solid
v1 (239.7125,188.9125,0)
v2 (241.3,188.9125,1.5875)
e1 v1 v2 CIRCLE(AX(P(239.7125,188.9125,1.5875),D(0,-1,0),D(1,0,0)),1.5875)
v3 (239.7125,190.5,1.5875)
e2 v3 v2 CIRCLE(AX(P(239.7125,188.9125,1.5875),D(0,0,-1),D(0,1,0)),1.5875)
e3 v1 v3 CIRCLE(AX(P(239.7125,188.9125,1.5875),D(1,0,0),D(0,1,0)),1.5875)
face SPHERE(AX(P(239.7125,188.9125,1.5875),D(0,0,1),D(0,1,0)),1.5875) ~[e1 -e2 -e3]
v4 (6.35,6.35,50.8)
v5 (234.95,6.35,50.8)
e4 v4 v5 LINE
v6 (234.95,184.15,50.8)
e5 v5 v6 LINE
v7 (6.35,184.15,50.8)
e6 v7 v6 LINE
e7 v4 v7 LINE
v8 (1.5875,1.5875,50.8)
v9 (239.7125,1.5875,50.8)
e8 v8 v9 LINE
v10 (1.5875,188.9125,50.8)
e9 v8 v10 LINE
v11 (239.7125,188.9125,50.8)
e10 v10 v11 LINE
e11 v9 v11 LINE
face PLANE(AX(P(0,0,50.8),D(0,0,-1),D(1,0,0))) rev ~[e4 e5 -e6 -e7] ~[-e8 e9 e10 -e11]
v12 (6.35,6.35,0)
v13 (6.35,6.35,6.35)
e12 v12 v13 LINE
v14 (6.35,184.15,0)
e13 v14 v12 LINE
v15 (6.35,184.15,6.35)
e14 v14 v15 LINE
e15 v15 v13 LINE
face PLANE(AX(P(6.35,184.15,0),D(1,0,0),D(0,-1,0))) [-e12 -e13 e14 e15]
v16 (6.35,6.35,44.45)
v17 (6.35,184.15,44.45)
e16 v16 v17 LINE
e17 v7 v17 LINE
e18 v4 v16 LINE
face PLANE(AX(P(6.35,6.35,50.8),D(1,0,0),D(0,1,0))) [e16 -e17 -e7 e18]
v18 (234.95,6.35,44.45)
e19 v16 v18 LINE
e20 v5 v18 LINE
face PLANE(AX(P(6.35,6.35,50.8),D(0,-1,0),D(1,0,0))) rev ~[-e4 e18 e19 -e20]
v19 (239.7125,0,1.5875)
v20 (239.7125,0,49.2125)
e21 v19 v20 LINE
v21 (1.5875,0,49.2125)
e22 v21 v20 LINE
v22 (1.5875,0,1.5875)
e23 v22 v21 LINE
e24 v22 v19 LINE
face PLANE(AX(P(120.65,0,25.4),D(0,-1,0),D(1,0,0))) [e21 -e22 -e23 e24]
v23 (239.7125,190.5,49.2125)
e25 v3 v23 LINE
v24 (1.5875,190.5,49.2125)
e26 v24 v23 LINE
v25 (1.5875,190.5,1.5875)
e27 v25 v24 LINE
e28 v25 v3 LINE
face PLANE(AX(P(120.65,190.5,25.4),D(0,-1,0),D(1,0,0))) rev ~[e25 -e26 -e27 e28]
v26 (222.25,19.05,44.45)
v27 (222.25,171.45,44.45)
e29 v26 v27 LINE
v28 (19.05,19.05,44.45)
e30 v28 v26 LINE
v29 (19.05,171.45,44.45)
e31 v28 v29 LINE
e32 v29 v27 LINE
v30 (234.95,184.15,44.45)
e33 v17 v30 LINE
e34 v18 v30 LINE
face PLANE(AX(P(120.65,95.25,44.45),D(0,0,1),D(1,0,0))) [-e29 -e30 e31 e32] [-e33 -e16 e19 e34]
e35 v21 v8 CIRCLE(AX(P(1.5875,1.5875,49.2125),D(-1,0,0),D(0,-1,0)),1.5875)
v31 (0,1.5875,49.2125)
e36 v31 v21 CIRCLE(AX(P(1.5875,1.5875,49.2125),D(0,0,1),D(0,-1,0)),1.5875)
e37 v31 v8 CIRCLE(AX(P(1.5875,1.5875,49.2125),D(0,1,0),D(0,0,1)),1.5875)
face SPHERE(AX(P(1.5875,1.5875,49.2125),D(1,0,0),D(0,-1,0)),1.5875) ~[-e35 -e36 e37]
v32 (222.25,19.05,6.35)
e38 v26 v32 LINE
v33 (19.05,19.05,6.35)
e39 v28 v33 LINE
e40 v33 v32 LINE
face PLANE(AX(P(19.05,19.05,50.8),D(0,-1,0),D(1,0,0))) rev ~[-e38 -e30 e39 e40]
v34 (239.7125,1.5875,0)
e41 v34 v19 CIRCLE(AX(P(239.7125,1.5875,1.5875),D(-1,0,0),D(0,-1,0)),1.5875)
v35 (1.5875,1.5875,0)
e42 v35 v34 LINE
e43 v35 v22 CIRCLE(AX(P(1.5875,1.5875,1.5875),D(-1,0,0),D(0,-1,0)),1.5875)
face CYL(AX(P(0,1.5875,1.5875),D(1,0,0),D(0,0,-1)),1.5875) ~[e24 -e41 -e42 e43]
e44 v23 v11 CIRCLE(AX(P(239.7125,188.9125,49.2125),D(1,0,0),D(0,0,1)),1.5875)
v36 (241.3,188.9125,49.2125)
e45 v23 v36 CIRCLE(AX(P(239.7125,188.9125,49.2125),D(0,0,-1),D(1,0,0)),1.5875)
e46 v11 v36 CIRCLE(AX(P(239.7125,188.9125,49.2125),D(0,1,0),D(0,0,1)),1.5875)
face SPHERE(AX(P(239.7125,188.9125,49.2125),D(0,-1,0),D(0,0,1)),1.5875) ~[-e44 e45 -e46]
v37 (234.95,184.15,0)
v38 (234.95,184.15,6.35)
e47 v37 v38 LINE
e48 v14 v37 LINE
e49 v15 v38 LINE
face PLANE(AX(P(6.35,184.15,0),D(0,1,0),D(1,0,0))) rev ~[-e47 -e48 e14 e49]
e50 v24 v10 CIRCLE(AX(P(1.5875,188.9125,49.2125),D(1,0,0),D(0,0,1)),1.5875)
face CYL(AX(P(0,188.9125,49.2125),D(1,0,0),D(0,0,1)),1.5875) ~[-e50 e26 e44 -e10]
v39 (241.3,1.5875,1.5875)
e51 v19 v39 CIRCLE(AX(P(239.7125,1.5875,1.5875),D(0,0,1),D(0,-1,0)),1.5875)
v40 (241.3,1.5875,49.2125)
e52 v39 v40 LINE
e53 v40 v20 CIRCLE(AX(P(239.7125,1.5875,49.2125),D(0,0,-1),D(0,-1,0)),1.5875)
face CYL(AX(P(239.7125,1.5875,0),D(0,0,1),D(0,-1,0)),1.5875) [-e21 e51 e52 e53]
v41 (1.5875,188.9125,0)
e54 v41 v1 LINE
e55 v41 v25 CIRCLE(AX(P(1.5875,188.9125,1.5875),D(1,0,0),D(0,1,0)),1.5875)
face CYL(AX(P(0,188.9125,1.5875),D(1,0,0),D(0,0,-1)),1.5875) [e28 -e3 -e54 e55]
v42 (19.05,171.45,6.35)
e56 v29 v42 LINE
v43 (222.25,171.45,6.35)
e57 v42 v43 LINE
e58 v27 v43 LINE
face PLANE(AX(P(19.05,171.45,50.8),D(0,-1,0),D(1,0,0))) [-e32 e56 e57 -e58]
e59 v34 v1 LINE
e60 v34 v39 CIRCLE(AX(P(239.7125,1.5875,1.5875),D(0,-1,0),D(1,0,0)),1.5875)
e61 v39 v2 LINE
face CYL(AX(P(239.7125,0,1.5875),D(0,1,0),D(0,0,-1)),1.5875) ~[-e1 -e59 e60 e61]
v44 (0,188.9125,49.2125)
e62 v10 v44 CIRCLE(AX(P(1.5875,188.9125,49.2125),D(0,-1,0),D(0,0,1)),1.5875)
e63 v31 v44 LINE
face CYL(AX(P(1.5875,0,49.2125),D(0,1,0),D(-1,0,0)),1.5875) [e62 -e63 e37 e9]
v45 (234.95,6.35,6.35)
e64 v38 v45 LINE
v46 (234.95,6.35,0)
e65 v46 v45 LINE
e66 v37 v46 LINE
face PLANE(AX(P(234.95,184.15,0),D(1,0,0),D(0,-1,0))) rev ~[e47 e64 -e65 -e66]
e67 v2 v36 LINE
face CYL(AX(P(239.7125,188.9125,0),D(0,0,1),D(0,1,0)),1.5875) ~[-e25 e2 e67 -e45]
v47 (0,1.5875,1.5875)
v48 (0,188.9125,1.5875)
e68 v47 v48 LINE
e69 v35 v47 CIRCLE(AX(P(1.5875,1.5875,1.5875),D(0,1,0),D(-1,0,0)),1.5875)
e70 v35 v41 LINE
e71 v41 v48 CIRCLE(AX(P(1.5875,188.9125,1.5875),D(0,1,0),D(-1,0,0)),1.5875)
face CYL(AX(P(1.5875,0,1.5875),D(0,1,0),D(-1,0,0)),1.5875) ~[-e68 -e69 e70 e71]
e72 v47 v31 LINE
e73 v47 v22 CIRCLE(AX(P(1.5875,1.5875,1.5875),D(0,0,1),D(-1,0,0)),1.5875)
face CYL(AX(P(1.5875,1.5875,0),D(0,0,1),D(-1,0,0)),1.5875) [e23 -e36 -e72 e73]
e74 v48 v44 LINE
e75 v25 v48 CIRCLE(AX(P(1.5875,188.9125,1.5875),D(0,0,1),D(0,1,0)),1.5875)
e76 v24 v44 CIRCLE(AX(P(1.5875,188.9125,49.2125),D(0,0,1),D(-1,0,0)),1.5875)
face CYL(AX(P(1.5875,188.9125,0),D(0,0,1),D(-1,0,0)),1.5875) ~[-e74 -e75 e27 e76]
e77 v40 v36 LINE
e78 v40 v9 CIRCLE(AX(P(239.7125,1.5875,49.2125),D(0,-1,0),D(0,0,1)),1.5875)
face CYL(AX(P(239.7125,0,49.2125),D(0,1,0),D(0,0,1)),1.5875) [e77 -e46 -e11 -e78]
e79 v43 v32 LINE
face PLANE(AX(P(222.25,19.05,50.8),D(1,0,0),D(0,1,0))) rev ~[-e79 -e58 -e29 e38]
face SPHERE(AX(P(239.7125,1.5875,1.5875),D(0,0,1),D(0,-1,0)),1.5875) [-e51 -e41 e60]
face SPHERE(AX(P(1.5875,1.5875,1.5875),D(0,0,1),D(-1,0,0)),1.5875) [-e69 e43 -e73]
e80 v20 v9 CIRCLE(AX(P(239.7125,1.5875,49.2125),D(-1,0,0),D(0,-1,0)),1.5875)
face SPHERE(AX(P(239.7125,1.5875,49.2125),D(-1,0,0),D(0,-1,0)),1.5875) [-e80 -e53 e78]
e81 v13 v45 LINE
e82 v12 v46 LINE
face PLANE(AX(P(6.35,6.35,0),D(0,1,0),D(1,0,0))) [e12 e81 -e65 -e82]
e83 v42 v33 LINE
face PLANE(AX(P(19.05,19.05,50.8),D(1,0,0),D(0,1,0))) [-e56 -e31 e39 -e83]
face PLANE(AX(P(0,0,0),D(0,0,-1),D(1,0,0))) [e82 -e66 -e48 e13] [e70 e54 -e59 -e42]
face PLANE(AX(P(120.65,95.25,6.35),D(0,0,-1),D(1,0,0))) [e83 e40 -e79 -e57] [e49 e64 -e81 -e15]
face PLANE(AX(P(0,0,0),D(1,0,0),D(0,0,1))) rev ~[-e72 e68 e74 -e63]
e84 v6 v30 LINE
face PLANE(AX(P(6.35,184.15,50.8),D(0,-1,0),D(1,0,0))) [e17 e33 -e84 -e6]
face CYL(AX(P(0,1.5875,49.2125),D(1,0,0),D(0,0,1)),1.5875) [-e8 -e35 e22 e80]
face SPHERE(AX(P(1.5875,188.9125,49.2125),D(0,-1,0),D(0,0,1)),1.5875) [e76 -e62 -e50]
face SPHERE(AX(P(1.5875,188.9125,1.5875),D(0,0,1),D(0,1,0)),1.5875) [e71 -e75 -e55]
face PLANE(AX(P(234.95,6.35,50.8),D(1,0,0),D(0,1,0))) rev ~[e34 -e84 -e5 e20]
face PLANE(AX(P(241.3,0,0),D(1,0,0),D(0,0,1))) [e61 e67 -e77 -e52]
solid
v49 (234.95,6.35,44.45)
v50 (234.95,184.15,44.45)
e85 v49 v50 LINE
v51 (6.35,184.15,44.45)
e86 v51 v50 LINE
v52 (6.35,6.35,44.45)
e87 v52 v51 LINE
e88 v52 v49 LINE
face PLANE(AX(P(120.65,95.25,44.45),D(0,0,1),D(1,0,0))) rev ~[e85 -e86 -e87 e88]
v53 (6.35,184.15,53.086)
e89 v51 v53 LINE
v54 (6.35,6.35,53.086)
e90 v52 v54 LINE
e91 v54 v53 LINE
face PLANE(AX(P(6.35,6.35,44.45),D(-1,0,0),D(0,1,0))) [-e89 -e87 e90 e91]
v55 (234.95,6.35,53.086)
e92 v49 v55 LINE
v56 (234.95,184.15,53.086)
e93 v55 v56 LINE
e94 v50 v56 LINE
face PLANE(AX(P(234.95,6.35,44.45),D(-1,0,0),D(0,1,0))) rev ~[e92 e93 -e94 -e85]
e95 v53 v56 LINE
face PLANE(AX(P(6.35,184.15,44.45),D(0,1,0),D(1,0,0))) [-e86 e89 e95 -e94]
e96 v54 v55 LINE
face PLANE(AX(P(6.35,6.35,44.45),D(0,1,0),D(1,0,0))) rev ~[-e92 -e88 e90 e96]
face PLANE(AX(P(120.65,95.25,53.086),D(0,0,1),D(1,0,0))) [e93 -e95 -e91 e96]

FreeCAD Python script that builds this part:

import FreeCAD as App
import Part
import Sketcher

V = App.Vector
Q = App.Units.Quantity


def edges_at(feature, points):
    """Names of the edges that pass closest to the given points."""
    edges = feature.Shape.Edges
    near = lambda p: min(range(len(edges)), key=lambda i: edges[i].distToShape(Part.Vertex(*p))[0])
    return sorted({f"Edge{near(p) + 1}" for p in points})


def add_polygon(sketch, points):
    """Adds a closed chain of lines whose ends are joined by coincident constraints."""
    first, n = sketch.GeometryCount, len(points)
    for a, b in zip(points, points[1:] + points[:1]):
        sketch.addGeometry(Part.LineSegment(App.Vector(*a, 0), App.Vector(*b, 0)), False)
    for i in range(n):
        sketch.addConstraint(Sketcher.Constraint("Coincident", first + i, 2, first + (i + 1) % n, 1))

doc = App.newDocument("Part")
params = doc.addObject("Spreadsheet::Sheet", "Params")
for row, (alias, value) in enumerate([
    ("sketch1_height", "2 in"),
    ("sketch1_width", "9.5 in"),
    ("pad1_length", "7.5 in"),
    ("sketch2_width", "8 in"),
    ("sketch2_height", "6 in"),
    ("sketch3_width", "9 in"),
    ("sketch3_width2", "8 in"),
    ("sketch3_height", "7 in"),
    ("sketch3_height2", "6 in"),
    ("pocket2_length", "0.25 in"),
    ("sketch4_width", "9 in"),
    ("sketch4_width2", "8 in"),
    ("sketch4_height", "7 in"),
    ("sketch4_height2", "6 in"),
    ("pocket3_length", "0.25 in"),
    ("fillet_radius", "0.0625 in"),
    ("sketch5_width", "9 in"),
    ("sketch5_height", "7 in"),
    ("pad2_length", "0.34 in"),
], start=1):
    params.set(f"A{row}", alias)
    params.set(f"B{row}", "=" + value)
    params.setAlias(f"B{row}", alias)

body = doc.addObject("PartDesign::Body", "Body")

# Sketch on XZ plane
sketch1 = doc.addObject("Sketcher::SketchObject", "Sketch")
body.addObject(sketch1)
sketch1.AttachmentSupport = (doc.XZ_Plane, [""])
sketch1.MapMode = "FlatFace"
add_polygon(sketch1, [(0, 51), (0, 0), (241, 0), (241, 51)])  # lines 0-3
sketch1.addConstraint(Sketcher.Constraint("Vertical", 0))
sketch1.addConstraint(Sketcher.Constraint("Horizontal", 1))
sketch1.addConstraint(Sketcher.Constraint("Vertical", 2))
sketch1.addConstraint(Sketcher.Constraint("Horizontal", 3))
sketch1.addConstraint(Sketcher.Constraint("Coincident", 0, 2, -1, 1))
sketch1.addConstraint(Sketcher.Constraint("DistanceY", 0, 2, 0, 1, Q("2 in")))
sketch1.addConstraint(Sketcher.Constraint("DistanceX", 1, 1, 1, 2, Q("9.5 in")))
sketch1.setExpression("Constraints[9]", "Params.sketch1_height")
sketch1.setExpression("Constraints[10]", "Params.sketch1_width")
pad1 = doc.addObject("PartDesign::Pad", "Pad")
body.addObject(pad1)
pad1.Profile = sketch1
pad1.setExpression("Length", "Params.pad1_length")
pad1.Reversed = True

# Sketch on XY plane
sketch2 = doc.addObject("Sketcher::SketchObject", "Sketch001")
body.addObject(sketch2)
sketch2.AttachmentSupport = (doc.XY_Plane, [""])
sketch2.MapMode = "FlatFace"
sketch2.AttachmentOffset = App.Placement(V(0, 0, 2 * 25.4), App.Rotation())
add_polygon(sketch2, [(19, 171), (19, 19), (222, 19), (222, 171)])  # lines 0-3
sketch2.addConstraint(Sketcher.Constraint("Vertical", 0))
sketch2.addConstraint(Sketcher.Constraint("Horizontal", 1))
sketch2.addConstraint(Sketcher.Constraint("Vertical", 2))
sketch2.addConstraint(Sketcher.Constraint("Horizontal", 3))
sketch2.addConstraint(Sketcher.Constraint("DistanceX", 1, 1, 1, 2, Q("8 in")))
sketch2.addConstraint(Sketcher.Constraint("DistanceY", 0, 2, 0, 1, Q("6 in")))
sketch2.addConstraint(Sketcher.Constraint("DistanceX", -1, 1, 0, 2, Q("0.75 in")))
sketch2.addConstraint(Sketcher.Constraint("DistanceY", -1, 1, 0, 2, Q("0.75 in")))
sketch2.setExpression("Constraints[8]", "Params.sketch2_width")
sketch2.setExpression("Constraints[9]", "Params.sketch2_height")
pocket1 = doc.addObject("PartDesign::Pocket", "Pocket")
body.addObject(pocket1)
pocket1.Profile = sketch2
pocket1.Type = "ThroughAll"

# Sketch on XY plane
sketch3 = doc.addObject("Sketcher::SketchObject", "Sketch002")
body.addObject(sketch3)
sketch3.AttachmentSupport = (doc.XY_Plane, [""])
sketch3.MapMode = "FlatFace"
sketch3.AttachmentOffset = App.Placement(V(0, 0, 2 * 25.4), App.Rotation())
add_polygon(sketch3, [(6, 184), (6, 6), (235, 6), (235, 184)])  # lines 0-3
add_polygon(sketch3, [(222, 19), (19, 19), (19, 171), (222, 171)])  # lines 4-7
sketch3.addConstraint(Sketcher.Constraint("Vertical", 0))
sketch3.addConstraint(Sketcher.Constraint("Horizontal", 1))
sketch3.addConstraint(Sketcher.Constraint("Vertical", 2))
sketch3.addConstraint(Sketcher.Constraint("Horizontal", 3))
sketch3.addConstraint(Sketcher.Constraint("Horizontal", 4))
sketch3.addConstraint(Sketcher.Constraint("Vertical", 5))
sketch3.addConstraint(Sketcher.Constraint("Horizontal", 6))
sketch3.addConstraint(Sketcher.Constraint("Vertical", 7))
sketch3.addConstraint(Sketcher.Constraint("DistanceX", 1, 1, 1, 2, Q("9 in")))
sketch3.addConstraint(Sketcher.Constraint("DistanceX", 4, 2, 4, 1, Q("8 in")))
sketch3.addConstraint(Sketcher.Constraint("DistanceY", 0, 2, 0, 1, Q("7 in")))
sketch3.addConstraint(Sketcher.Constraint("DistanceY", 5, 1, 5, 2, Q("6 in")))
sketch3.addConstraint(Sketcher.Constraint("DistanceX", 0, 2, 4, 2, Q("0.5 in")))
sketch3.addConstraint(Sketcher.Constraint("DistanceY", 0, 2, 4, 2, Q("0.5 in")))
sketch3.addConstraint(Sketcher.Constraint("DistanceX", -1, 1, 0, 2, Q("0.25 in")))
sketch3.addConstraint(Sketcher.Constraint("DistanceY", -1, 1, 0, 2, Q("0.25 in")))
sketch3.setExpression("Constraints[16]", "Params.sketch3_width")
sketch3.setExpression("Constraints[17]", "Params.sketch3_width2")
sketch3.setExpression("Constraints[18]", "Params.sketch3_height")
sketch3.setExpression("Constraints[19]", "Params.sketch3_height2")
pocket2 = doc.addObject("PartDesign::Pocket", "Pocket001")
body.addObject(pocket2)
pocket2.Profile = sketch3
pocket2.setExpression("Length", "Params.pocket2_length")

# Sketch on XY plane
sketch4 = doc.addObject("Sketcher::SketchObject", "Sketch003")
body.addObject(sketch4)
sketch4.AttachmentSupport = (doc.XY_Plane, [""])
sketch4.MapMode = "FlatFace"
add_polygon(sketch4, [(6, 6), (6, 184), (235, 184), (235, 6)])  # lines 0-3
add_polygon(sketch4, [(222, 171), (19, 171), (19, 19), (222, 19)])  # lines 4-7
sketch4.addConstraint(Sketcher.Constraint("Vertical", 0))
sketch4.addConstraint(Sketcher.Constraint("Horizontal", 1))
sketch4.addConstraint(Sketcher.Constraint("Vertical", 2))
sketch4.addConstraint(Sketcher.Constraint("Horizontal", 3))
sketch4.addConstraint(Sketcher.Constraint("Horizontal", 4))
sketch4.addConstraint(Sketcher.Constraint("Vertical", 5))
sketch4.addConstraint(Sketcher.Constraint("Horizontal", 6))
sketch4.addConstraint(Sketcher.Constraint("Vertical", 7))
sketch4.addConstraint(Sketcher.Constraint("DistanceX", 1, 1, 1, 2, Q("9 in")))
sketch4.addConstraint(Sketcher.Constraint("DistanceX", 4, 2, 4, 1, Q("8 in")))
sketch4.addConstraint(Sketcher.Constraint("DistanceY", 0, 1, 0, 2, Q("7 in")))
sketch4.addConstraint(Sketcher.Constraint("DistanceY", 5, 2, 5, 1, Q("6 in")))
sketch4.addConstraint(Sketcher.Constraint("DistanceX", 0, 2, 4, 2, Q("0.5 in")))
sketch4.addConstraint(Sketcher.Constraint("DistanceY", 4, 2, 0, 2, Q("0.5 in")))
sketch4.addConstraint(Sketcher.Constraint("DistanceX", -1, 1, 0, 2, Q("0.25 in")))
sketch4.addConstraint(Sketcher.Constraint("DistanceY", -1, 1, 0, 2, Q("7.25 in")))
sketch4.setExpression("Constraints[16]", "Params.sketch4_width")
sketch4.setExpression("Constraints[17]", "Params.sketch4_width2")
sketch4.setExpression("Constraints[18]", "Params.sketch4_height")
sketch4.setExpression("Constraints[19]", "Params.sketch4_height2")
pocket3 = doc.addObject("PartDesign::Pocket", "Pocket002")
body.addObject(pocket3)
pocket3.Profile = sketch4
pocket3.setExpression("Length", "Params.pocket3_length")
pocket3.Reversed = True
doc.recompute()

fillet = doc.addObject("PartDesign::Fillet", "Fillet")
body.addObject(fillet)
fillet.Base = (pocket3, edges_at(pocket3, [
    (120.65, 0, 50.8),
    (0, 0, 25.4),
    (0, 95.25, 50.8),
    (241.3, 0, 25.4),
    (241.3, 95.25, 50.8),
    (120.65, 190.5, 50.8),
    (241.3, 190.5, 25.4),
    (0, 190.5, 25.4),
    (120.65, 190.5, 0),
    (0, 95.25, 0),
    (120.65, 0, 0),
    (241.3, 95.25, 0),
]))
fillet.setExpression("Radius", "Params.fillet_radius")
body2 = doc.addObject("PartDesign::Body", "Body001")

# Sketch on XY plane
sketch5 = doc.addObject("Sketcher::SketchObject", "Sketch004")
body2.addObject(sketch5)
sketch5.AttachmentSupport = (doc.getObject("XY_Plane001"), [""])
sketch5.MapMode = "FlatFace"
sketch5.AttachmentOffset = App.Placement(V(0, 0, 1.75 * 25.4), App.Rotation())
add_polygon(sketch5, [(6, 184), (6, 6), (235, 6), (235, 184)])  # lines 0-3
sketch5.addConstraint(Sketcher.Constraint("Vertical", 0))
sketch5.addConstraint(Sketcher.Constraint("Horizontal", 1))
sketch5.addConstraint(Sketcher.Constraint("Vertical", 2))
sketch5.addConstraint(Sketcher.Constraint("Horizontal", 3))
sketch5.addConstraint(Sketcher.Constraint("DistanceX", 1, 1, 1, 2, Q("9 in")))
sketch5.addConstraint(Sketcher.Constraint("DistanceY", 0, 2, 0, 1, Q("7 in")))
sketch5.addConstraint(Sketcher.Constraint("DistanceX", -1, 1, 0, 2, Q("0.25 in")))
sketch5.addConstraint(Sketcher.Constraint("DistanceY", -1, 1, 0, 2, Q("0.25 in")))
sketch5.setExpression("Constraints[8]", "Params.sketch5_width")
sketch5.setExpression("Constraints[9]", "Params.sketch5_height")
pad2 = doc.addObject("PartDesign::Pad", "Pad001")
body2.addObject(pad2)
pad2.Profile = sketch5
pad2.setExpression("Length", "Params.pad2_length")

doc.recompute()
